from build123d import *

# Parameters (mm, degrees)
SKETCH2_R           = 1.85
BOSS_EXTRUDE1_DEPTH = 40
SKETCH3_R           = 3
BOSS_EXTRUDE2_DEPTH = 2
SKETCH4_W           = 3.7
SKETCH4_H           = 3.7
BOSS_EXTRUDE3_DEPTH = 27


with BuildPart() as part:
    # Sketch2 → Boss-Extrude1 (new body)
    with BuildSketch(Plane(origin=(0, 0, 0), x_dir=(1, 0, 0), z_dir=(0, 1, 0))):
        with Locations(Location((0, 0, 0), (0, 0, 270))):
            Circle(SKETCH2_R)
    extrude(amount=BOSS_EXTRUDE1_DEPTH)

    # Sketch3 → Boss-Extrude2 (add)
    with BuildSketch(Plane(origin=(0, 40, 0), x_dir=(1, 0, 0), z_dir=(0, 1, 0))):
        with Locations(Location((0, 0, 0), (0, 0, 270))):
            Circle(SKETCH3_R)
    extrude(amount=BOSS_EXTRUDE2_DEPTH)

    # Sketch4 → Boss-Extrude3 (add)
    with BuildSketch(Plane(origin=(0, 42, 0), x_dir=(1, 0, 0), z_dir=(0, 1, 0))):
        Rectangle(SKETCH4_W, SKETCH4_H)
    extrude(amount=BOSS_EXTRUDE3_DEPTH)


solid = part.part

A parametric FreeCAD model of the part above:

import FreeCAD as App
import Part
import Sketcher
Q = App.Units.Quantity


def add_polygon(sketch, points):
    """Adds a closed chain of lines whose ends are joined by coincident constraints."""
    first, n = sketch.GeometryCount, len(points)
    for a, b in zip(points, points[1:] + points[:1]):
        sketch.addGeometry(Part.LineSegment(App.Vector(*a, 0), App.Vector(*b, 0)), False)
    for i in range(n):
        sketch.addConstraint(Sketcher.Constraint("Coincident", first + i, 2, first + (i + 1) % n, 1))

doc = App.newDocument("Part")
params = doc.addObject("Spreadsheet::Sheet", "Params")
for row, (alias, value) in enumerate([
    ("sketch1_diameter", "3.7 mm"),
    ("pad1_length", "40 mm"),
    ("sketch2_diameter", "6 mm"),
    ("pad2_length", "2 mm"),
    ("sketch3_width", "3.7 mm"),
    ("pad3_length", "27 mm"),
], start=1):
    params.set(f"A{row}", alias)
    params.set(f"B{row}", "=" + value)
    params.setAlias(f"B{row}", alias)

body = doc.addObject("PartDesign::Body", "Body")

sketch1 = body.newObject("Sketcher::SketchObject", "Sketch")
sketch1.AttachmentSupport = (doc.getObject("XZ_Plane"), [""])
sketch1.MapMode = "FlatFace"
sketch1.addGeometry(Part.Circle(App.Vector(0, 0, 0), App.Vector(0, 0, 1), 1.9), False)
sketch1.addConstraint([
    Sketcher.Constraint("Coincident", 0, 3, -1, 1),
    Sketcher.Constraint("Diameter", 0, Q("3.7 mm")),
])
sketch1.setExpression("Constraints[1]", "Params.sketch1_diameter")
pad1 = body.newObject("PartDesign::Pad", "Pad")
pad1.Profile = sketch1
pad1.setExpression("Length", "Params.pad1_length")
pad1.Reversed = True

sketch2 = body.newObject("Sketcher::SketchObject", "Sketch001")
sketch2.AttachmentSupport = (doc.getObject("XZ_Plane"), [""])
sketch2.MapMode = "FlatFace"
sketch2.AttachmentOffset = App.Placement(App.Vector(0, 0, -40), App.Rotation())
sketch2.addGeometry(Part.Circle(App.Vector(0, 0, 0), App.Vector(0, 0, 1), 3), False)
sketch2.addConstraint([
    Sketcher.Constraint("Coincident", 0, 3, -1, 1),
    Sketcher.Constraint("Diameter", 0, Q("6 mm")),
])
sketch2.setExpression("Constraints[1]", "Params.sketch2_diameter")
pad2 = body.newObject("PartDesign::Pad", "Pad001")
pad2.Profile = sketch2
pad2.setExpression("Length", "Params.pad2_length")
pad2.Reversed = True

sketch3 = body.newObject("Sketcher::SketchObject", "Sketch002")
sketch3.AttachmentSupport = (doc.getObject("XZ_Plane"), [""])
sketch3.MapMode = "FlatFace"
sketch3.AttachmentOffset = App.Placement(App.Vector(0, 0, -42), App.Rotation())
add_polygon(sketch3, [(-1.9, -1.9), (-1.9, 1.9), (1.9, 1.9), (1.9, -1.9)])
sketch3.addConstraint([
    Sketcher.Constraint("Vertical", 0),
    Sketcher.Constraint("Horizontal", 1),
    Sketcher.Constraint("Vertical", 2),
    Sketcher.Constraint("Horizontal", 3),
    Sketcher.Constraint("Symmetric", 0, 2, 2, 2, -1, 1),
    Sketcher.Constraint("Equal", 3, 0),
    Sketcher.Constraint("DistanceX", 1, 1, 1, 2, Q("3.7 mm")),
])
sketch3.setExpression("Constraints[10]", "Params.sketch3_width")
pad3 = body.newObject("PartDesign::Pad", "Pad002")
pad3.Profile = sketch3
pad3.setExpression("Length", "Params.pad3_length")
pad3.Reversed = True

doc.recompute()
